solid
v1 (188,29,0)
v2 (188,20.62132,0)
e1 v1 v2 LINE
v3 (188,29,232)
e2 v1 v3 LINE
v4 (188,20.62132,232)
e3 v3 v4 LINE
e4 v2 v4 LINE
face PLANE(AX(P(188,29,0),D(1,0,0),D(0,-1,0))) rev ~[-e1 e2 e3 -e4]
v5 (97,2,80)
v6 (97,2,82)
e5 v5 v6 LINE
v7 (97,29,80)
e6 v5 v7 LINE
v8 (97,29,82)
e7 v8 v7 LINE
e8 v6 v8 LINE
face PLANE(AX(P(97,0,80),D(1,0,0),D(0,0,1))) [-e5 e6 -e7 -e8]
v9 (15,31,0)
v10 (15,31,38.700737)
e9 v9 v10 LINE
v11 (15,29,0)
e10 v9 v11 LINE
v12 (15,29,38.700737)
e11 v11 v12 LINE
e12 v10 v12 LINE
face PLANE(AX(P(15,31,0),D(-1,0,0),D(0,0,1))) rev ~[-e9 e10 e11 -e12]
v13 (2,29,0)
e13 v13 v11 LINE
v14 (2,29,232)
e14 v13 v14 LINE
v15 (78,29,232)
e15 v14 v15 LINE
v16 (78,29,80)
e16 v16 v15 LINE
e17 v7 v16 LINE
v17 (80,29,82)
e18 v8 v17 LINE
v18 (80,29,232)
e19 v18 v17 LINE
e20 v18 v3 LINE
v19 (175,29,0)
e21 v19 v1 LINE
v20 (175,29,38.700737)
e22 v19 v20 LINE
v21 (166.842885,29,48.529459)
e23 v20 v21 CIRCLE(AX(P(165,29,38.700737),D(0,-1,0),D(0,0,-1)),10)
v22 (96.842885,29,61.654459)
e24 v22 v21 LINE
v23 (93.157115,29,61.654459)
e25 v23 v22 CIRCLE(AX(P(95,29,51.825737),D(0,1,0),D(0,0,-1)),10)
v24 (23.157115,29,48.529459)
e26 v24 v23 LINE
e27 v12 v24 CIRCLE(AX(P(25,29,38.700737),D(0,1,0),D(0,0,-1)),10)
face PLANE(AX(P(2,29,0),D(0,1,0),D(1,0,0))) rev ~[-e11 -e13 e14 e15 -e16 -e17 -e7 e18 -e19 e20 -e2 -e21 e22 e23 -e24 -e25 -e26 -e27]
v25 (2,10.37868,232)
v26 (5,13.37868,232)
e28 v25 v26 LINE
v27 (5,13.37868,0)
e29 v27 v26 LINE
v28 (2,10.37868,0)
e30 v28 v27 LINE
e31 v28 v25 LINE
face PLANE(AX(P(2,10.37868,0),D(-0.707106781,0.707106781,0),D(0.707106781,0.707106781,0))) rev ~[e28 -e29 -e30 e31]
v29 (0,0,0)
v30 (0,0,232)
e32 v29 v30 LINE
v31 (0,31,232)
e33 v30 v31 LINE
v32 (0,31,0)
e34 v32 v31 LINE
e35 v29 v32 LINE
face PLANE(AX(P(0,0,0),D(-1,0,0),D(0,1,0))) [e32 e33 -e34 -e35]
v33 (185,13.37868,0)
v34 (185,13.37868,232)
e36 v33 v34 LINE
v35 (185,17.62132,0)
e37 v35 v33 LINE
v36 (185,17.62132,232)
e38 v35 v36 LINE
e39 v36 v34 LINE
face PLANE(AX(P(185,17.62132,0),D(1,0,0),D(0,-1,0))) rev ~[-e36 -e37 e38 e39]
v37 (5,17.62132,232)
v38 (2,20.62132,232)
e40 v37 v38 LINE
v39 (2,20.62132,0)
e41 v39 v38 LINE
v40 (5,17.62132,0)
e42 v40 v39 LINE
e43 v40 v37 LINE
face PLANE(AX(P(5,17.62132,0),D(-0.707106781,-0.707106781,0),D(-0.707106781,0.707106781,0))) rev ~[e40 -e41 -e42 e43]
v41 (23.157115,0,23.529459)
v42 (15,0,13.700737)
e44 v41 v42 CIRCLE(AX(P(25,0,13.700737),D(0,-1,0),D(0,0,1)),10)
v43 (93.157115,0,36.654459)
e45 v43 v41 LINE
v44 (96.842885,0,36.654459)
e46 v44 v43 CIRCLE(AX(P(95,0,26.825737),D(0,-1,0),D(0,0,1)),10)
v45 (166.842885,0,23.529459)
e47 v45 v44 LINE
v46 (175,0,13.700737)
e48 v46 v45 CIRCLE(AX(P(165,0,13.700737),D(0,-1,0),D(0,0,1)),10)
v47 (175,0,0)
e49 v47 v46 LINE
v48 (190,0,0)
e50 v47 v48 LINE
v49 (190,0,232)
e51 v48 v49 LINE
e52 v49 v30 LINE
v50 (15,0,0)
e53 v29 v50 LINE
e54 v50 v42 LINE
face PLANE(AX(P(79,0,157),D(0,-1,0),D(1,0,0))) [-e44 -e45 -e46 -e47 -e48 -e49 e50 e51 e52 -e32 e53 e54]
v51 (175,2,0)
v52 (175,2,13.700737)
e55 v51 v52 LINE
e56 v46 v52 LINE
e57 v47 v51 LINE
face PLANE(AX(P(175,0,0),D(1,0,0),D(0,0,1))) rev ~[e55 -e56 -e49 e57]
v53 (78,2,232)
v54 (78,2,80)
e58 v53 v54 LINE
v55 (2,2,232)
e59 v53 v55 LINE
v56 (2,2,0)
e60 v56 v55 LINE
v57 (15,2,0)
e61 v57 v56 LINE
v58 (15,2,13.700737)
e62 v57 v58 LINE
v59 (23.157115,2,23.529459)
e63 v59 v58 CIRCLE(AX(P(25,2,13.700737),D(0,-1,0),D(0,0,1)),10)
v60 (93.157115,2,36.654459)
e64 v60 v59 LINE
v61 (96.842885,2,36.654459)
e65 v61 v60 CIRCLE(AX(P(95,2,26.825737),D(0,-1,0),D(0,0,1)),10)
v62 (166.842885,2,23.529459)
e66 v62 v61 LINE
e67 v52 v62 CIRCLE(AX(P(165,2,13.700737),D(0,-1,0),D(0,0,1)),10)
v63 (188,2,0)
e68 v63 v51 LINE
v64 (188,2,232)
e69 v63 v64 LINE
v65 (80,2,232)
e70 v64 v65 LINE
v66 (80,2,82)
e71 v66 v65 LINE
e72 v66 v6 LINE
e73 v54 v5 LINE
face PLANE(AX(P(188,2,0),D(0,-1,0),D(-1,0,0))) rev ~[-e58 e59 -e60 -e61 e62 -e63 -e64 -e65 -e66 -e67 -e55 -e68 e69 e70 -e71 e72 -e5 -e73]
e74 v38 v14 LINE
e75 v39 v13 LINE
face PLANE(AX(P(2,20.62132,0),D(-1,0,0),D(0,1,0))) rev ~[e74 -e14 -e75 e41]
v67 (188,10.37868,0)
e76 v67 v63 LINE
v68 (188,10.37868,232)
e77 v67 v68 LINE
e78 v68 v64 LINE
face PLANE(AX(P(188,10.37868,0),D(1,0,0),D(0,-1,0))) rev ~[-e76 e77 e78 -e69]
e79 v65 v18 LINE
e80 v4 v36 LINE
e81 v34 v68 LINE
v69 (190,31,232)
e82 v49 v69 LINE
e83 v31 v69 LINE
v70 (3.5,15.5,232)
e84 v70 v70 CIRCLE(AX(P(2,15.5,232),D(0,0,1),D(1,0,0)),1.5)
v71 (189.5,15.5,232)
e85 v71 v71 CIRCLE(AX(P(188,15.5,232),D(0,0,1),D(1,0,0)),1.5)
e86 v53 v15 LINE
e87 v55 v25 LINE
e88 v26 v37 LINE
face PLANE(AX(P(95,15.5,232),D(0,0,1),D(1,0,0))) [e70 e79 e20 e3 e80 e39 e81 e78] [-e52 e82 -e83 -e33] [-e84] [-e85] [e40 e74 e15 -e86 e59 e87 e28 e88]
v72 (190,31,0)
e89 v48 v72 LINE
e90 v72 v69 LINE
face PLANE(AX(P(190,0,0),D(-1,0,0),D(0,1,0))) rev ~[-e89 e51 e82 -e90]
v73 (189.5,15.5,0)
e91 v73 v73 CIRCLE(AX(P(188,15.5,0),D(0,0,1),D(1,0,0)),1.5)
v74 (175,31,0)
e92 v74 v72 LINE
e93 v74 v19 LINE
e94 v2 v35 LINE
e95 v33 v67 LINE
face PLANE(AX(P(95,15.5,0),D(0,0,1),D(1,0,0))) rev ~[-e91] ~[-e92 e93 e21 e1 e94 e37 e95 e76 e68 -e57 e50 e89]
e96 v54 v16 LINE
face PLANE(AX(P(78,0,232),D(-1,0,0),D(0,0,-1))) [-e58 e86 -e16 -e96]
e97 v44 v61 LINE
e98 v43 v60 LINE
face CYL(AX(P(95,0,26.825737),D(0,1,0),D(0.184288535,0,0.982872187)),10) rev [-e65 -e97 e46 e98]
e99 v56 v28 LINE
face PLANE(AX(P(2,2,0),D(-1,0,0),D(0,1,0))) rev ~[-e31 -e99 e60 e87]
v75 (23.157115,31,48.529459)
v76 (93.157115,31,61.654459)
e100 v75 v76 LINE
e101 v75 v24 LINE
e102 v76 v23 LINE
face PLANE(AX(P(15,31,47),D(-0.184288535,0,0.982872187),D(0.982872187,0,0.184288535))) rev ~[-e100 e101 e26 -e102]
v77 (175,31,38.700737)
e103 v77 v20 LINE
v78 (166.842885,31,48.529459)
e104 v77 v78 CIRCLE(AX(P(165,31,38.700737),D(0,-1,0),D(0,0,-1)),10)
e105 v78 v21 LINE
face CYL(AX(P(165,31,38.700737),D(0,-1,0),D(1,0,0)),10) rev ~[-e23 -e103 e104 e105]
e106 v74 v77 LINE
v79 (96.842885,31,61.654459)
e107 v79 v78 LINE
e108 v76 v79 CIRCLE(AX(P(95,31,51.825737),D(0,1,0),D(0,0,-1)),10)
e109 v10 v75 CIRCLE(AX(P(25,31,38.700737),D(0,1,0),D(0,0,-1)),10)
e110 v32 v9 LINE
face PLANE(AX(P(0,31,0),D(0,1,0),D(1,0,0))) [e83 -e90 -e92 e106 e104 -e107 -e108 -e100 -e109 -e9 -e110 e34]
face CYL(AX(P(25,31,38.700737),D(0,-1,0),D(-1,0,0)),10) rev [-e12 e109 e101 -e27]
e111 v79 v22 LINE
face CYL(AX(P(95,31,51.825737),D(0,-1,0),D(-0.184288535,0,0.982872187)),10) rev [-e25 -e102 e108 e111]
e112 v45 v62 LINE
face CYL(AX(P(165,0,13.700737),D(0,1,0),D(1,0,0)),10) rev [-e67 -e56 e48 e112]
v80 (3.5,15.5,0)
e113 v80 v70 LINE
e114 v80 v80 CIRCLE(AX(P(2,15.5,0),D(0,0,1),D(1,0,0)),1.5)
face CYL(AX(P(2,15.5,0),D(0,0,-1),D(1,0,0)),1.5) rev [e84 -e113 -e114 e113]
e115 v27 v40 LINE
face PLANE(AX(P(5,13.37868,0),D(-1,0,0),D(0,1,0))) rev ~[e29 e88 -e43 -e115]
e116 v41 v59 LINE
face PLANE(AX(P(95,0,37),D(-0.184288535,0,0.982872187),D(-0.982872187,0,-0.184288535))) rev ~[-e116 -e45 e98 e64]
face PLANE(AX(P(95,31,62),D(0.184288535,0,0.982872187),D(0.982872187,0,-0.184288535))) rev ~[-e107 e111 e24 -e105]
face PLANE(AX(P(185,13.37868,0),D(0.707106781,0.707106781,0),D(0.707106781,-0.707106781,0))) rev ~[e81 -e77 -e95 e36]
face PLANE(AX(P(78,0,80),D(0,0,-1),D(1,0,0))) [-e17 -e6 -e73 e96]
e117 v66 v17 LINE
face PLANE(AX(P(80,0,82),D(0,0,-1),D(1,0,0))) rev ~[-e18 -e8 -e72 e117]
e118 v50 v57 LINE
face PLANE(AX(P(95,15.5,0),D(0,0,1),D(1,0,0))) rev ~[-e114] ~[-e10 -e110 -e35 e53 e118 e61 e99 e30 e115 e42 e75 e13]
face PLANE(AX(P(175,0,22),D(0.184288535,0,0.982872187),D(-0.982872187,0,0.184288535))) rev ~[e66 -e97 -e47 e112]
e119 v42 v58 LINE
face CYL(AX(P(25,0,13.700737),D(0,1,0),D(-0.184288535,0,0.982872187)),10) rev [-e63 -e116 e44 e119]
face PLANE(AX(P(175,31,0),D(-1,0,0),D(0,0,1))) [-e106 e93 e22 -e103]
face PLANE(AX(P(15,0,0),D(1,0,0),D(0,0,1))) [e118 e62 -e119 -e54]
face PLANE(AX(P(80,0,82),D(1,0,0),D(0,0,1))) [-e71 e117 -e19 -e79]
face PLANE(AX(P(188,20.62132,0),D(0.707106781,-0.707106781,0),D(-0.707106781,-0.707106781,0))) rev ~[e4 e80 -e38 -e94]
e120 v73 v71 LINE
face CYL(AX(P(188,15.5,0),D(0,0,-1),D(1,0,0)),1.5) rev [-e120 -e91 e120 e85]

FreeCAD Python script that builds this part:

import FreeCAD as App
import Part
import Sketcher


def edges_at(feature, points):
    """Names of the edges that pass closest to the given points."""
    edges = feature.Shape.Edges
    near = lambda p: min(range(len(edges)), key=lambda i: edges[i].distToShape(Part.Vertex(*p))[0])
    return sorted({f"Edge{near(p) + 1}" for p in points})

doc = App.newDocument("Part")
body = doc.addObject("PartDesign::Body", "Body")

sketch1 = doc.addObject("Sketcher::SketchObject", "Sketch")
body.addObject(sketch1)
sketch1.AttachmentSupport = (doc.XY_Plane, [""])
sketch1.MapMode = "FlatFace"
sketch1.addGeometry([
    Part.LineSegment(App.Vector(0, 31, 0), App.Vector(0, 0, 0)),
    Part.LineSegment(App.Vector(0, 0, 0), App.Vector(190, 0, 0)),
    Part.LineSegment(App.Vector(190, 0, 0), App.Vector(190, 31, 0)),
    Part.LineSegment(App.Vector(190, 31, 0), App.Vector(0, 31, 0)),
    Part.Circle(App.Vector(2, 15.5, 0), App.Vector(0, 0, 1), 1.5),
    Part.LineSegment(App.Vector(188, 10.4, 0), App.Vector(188, 2, 0)),
    Part.LineSegment(App.Vector(188, 2, 0), App.Vector(2, 2, 0)),
    Part.LineSegment(App.Vector(2, 2, 0), App.Vector(2, 10.4, 0)),
    Part.LineSegment(App.Vector(2, 10.4, 0), App.Vector(5, 13.4, 0)),
    Part.LineSegment(App.Vector(5, 13.4, 0), App.Vector(5, 17.6, 0)),
    Part.LineSegment(App.Vector(5, 17.6, 0), App.Vector(2, 20.6, 0)),
    Part.LineSegment(App.Vector(2, 20.6, 0), App.Vector(2, 29, 0)),
    Part.LineSegment(App.Vector(2, 29, 0), App.Vector(188, 29, 0)),
    Part.LineSegment(App.Vector(188, 29, 0), App.Vector(188, 20.6, 0)),
    Part.LineSegment(App.Vector(188, 20.6, 0), App.Vector(185, 17.6, 0)),
    Part.LineSegment(App.Vector(185, 17.6, 0), App.Vector(185, 13.4, 0)),
    Part.LineSegment(App.Vector(185, 13.4, 0), App.Vector(188, 10.4, 0)),
    Part.Circle(App.Vector(188, 15.5, 0), App.Vector(0, 0, 1), 1.5),
], False)
sketch1.addConstraint([
    Sketcher.Constraint("Coincident", 0, 2, 1, 1),
    Sketcher.Constraint("Coincident", 1, 2, 2, 1),
    Sketcher.Constraint("Coincident", 2, 2, 3, 1),
    Sketcher.Constraint("Coincident", 3, 2, 0, 1),
    Sketcher.Constraint("Coincident", 5, 2, 6, 1),
    Sketcher.Constraint("Coincident", 6, 2, 7, 1),
    Sketcher.Constraint("Coincident", 7, 2, 8, 1),
    Sketcher.Constraint("Coincident", 8, 2, 9, 1),
    Sketcher.Constraint("Coincident", 9, 2, 10, 1),
    Sketcher.Constraint("Coincident", 10, 2, 11, 1),
    Sketcher.Constraint("Coincident", 11, 2, 12, 1),
    Sketcher.Constraint("Coincident", 12, 2, 13, 1),
    Sketcher.Constraint("Coincident", 13, 2, 14, 1),
    Sketcher.Constraint("Coincident", 14, 2, 15, 1),
    Sketcher.Constraint("Coincident", 15, 2, 16, 1),
    Sketcher.Constraint("Coincident", 16, 2, 5, 1),
    Sketcher.Constraint("Vertical", 0),
    Sketcher.Constraint("Horizontal", 1),
    Sketcher.Constraint("Vertical", 2),
    Sketcher.Constraint("Horizontal", 3),
    Sketcher.Constraint("Vertical", 5),
    Sketcher.Constraint("Horizontal", 6),
    Sketcher.Constraint("Vertical", 7),
    Sketcher.Constraint("Vertical", 9),
    Sketcher.Constraint("Vertical", 11),
    Sketcher.Constraint("Horizontal", 12),
    Sketcher.Constraint("Vertical", 13),
    Sketcher.Constraint("Vertical", 15),
    Sketcher.Constraint("Coincident", 0, 2, -1, 1),
    Sketcher.Constraint("Equal", 4, 17),
    Sketcher.Constraint("Perpendicular", 8, 10),
    Sketcher.Constraint("Perpendicular", 10, 14),
    Sketcher.Constraint("Perpendicular", 14, 16),
    Sketcher.Constraint("Horizontal", 4, 3, 17, 3),
    Sketcher.Constraint("Horizontal", 10, 2, 13, 2),
    Sketcher.Constraint("Horizontal", 9, 2, 14, 2),
    Sketcher.Constraint("Horizontal", 8, 2, 15, 2),
    Sketcher.Constraint("Horizontal", 7, 2, 16, 2),
    Sketcher.Constraint("Vertical", 17, 3, 5, 2),
    Sketcher.Constraint("Vertical", 4, 3, 6, 2),
    Sketcher.Constraint("Vertical", 7, 2, 10, 2),
    Sketcher.Constraint("Vertical", 5, 2, 12, 2),
    Sketcher.Constraint("Equal", 7, 11),
    Sketcher.Constraint("Diameter", 4, 3.0),
    Sketcher.Constraint("DistanceX", 1, 1, 1, 2, 190.0),
    Sketcher.Constraint("DistanceX", 6, 2, 6, 1, 186.0),
    Sketcher.Constraint("DistanceY", 0, 2, 0, 1, 31.0),
    Sketcher.Constraint("DistanceX", -1, 1, 4, 3, 2.0),
    Sketcher.Constraint("DistanceY", -1, 1, 5, 2, 2.0),
    Sketcher.Constraint("DistanceX", -1, 1, 8, 2, 5.0),
    Sketcher.Constraint("DistanceY", -1, 1, 11, 2, 29.0),
    Sketcher.Constraint("DistanceY", -1, 1, 4, 3, 15.5),
    Sketcher.Constraint("DistanceY", 5, 2, 5, 1, 8.37868),
])
pad1 = doc.addObject("PartDesign::Pad", "Pad")
body.addObject(pad1)
pad1.Profile = sketch1
pad1.Length = 232

sketch2 = doc.addObject("Sketcher::SketchObject", "Sketch001")
body.addObject(sketch2)
sketch2.AttachmentSupport = (doc.XZ_Plane, [""])
sketch2.MapMode = "FlatFace"
sketch2.addGeometry([
    Part.LineSegment(App.Vector(78, 232, 0), App.Vector(78, 80, 0)),
    Part.LineSegment(App.Vector(78, 80, 0), App.Vector(97, 80, 0)),
    Part.LineSegment(App.Vector(97, 80, 0), App.Vector(97, 82, 0)),
    Part.LineSegment(App.Vector(97, 82, 0), App.Vector(80, 82, 0)),
    Part.LineSegment(App.Vector(80, 82, 0), App.Vector(80, 232, 0)),
    Part.LineSegment(App.Vector(80, 232, 0), App.Vector(78, 232, 0)),
], False)
sketch2.addConstraint([
    Sketcher.Constraint("Coincident", 0, 2, 1, 1),
    Sketcher.Constraint("Coincident", 1, 2, 2, 1),
    Sketcher.Constraint("Coincident", 2, 2, 3, 1),
    Sketcher.Constraint("Coincident", 3, 2, 4, 1),
    Sketcher.Constraint("Coincident", 4, 2, 5, 1),
    Sketcher.Constraint("Coincident", 5, 2, 0, 1),
    Sketcher.Constraint("Vertical", 0),
    Sketcher.Constraint("Horizontal", 1),
    Sketcher.Constraint("Vertical", 2),
    Sketcher.Constraint("Horizontal", 3),
    Sketcher.Constraint("Vertical", 4),
    Sketcher.Constraint("Horizontal", 5),
    Sketcher.Constraint("Equal", 5, 2),
    Sketcher.Constraint("DistanceX", 1, 1, 1, 2, 19.0),
    Sketcher.Constraint("DistanceX", 3, 2, 3, 1, 17.0),
    Sketcher.Constraint("DistanceY", 0, 2, 0, 1, 152.0),
    Sketcher.Constraint("DistanceX", -1, 1, 0, 2, 78.0),
    Sketcher.Constraint("DistanceY", -1, 1, 0, 2, 80.0),
])
pad2 = doc.addObject("PartDesign::Pad", "Pad001")
body.addObject(pad2)
pad2.Profile = sketch2
pad2.Length = 29.5
pad2.Reversed = True

sketch3 = doc.addObject("Sketcher::SketchObject", "Sketch002")
body.addObject(sketch3)
sketch3.AttachmentSupport = (doc.XZ_Plane, [""])
sketch3.MapMode = "FlatFace"
sketch3.AttachmentOffset = App.Placement(App.Vector(0, 0, -31), App.Rotation())
sketch3.addGeometry([
    Part.LineSegment(App.Vector(95, 62, 0), App.Vector(175, 47, 0)),
    Part.LineSegment(App.Vector(175, 47, 0), App.Vector(175, 0, 0)),
    Part.LineSegment(App.Vector(175, 0, 0), App.Vector(15, 0, 0)),
    Part.LineSegment(App.Vector(15, 0, 0), App.Vector(15, 47, 0)),
    Part.LineSegment(App.Vector(15, 47, 0), App.Vector(95, 62, 0)),
], False)
sketch3.addConstraint([
    Sketcher.Constraint("Coincident", 0, 2, 1, 1),
    Sketcher.Constraint("Coincident", 1, 2, 2, 1),
    Sketcher.Constraint("Coincident", 2, 2, 3, 1),
    Sketcher.Constraint("Coincident", 3, 2, 4, 1),
    Sketcher.Constraint("Coincident", 4, 2, 0, 1),
    Sketcher.Constraint("Vertical", 1),
    Sketcher.Constraint("Horizontal", 2),
    Sketcher.Constraint("Vertical", 3),
    Sketcher.Constraint("PointOnObject", 1, 2, -1),
    Sketcher.Constraint("Horizontal", 0, 2, 3, 2),
    Sketcher.Constraint("Equal", 0, 4),
    Sketcher.Constraint("DistanceX", 2, 2, 2, 1, 160.0),
    Sketcher.Constraint("DistanceY", 1, 2, 1, 1, 47.0),
    Sketcher.Constraint("DistanceX", -1, 1, 0, 2, 175.0),
    Sketcher.Constraint("DistanceY", -1, 1, 4, 2, 62.0),
])
pocket1 = doc.addObject("PartDesign::Pocket", "Pocket")
body.addObject(pocket1)
pocket1.Profile = sketch3
pocket1.Length = 5
pocket1.Reversed = True

sketch4 = doc.addObject("Sketcher::SketchObject", "Sketch003")
body.addObject(sketch4)
sketch4.AttachmentSupport = (doc.XZ_Plane, [""])
sketch4.MapMode = "FlatFace"
sketch4.addGeometry([
    Part.LineSegment(App.Vector(95, 37, 0), App.Vector(15, 22, 0)),
    Part.LineSegment(App.Vector(15, 22, 0), App.Vector(15, 0, 0)),
    Part.LineSegment(App.Vector(15, 0, 0), App.Vector(175, 0, 0)),
    Part.LineSegment(App.Vector(175, 0, 0), App.Vector(175, 22, 0)),
    Part.LineSegment(App.Vector(175, 22, 0), App.Vector(95, 37, 0)),
], False)
sketch4.addConstraint([
    Sketcher.Constraint("Coincident", 0, 2, 1, 1),
    Sketcher.Constraint("Coincident", 1, 2, 2, 1),
    Sketcher.Constraint("Coincident", 2, 2, 3, 1),
    Sketcher.Constraint("Coincident", 3, 2, 4, 1),
    Sketcher.Constraint("Coincident", 4, 2, 0, 1),
    Sketcher.Constraint("Vertical", 1),
    Sketcher.Constraint("Horizontal", 2),
    Sketcher.Constraint("Vertical", 3),
    Sketcher.Constraint("PointOnObject", 1, 2, -1),
    Sketcher.Constraint("Horizontal", 0, 2, 3, 2),
    Sketcher.Constraint("Equal", 0, 4),
    Sketcher.Constraint("DistanceX", 2, 1, 2, 2, 160.0),
    Sketcher.Constraint("DistanceY", 1, 2, 1, 1, 22.0),
    Sketcher.Constraint("DistanceX", -1, 1, 0, 2, 15.0),
    Sketcher.Constraint("DistanceY", -1, 1, 4, 2, 37.0),
])
pocket2 = doc.addObject("PartDesign::Pocket", "Pocket001")
body.addObject(pocket2)
pocket2.Profile = sketch4
pocket2.Length = 5
doc.recompute()

fillet = doc.addObject("PartDesign::Fillet", "Fillet")
body.addObject(fillet)
fillet.Base = (pocket2, edges_at(pocket2, [
    (15, 30, 47),
    (15, 1, 22),
    (175, 30, 47),
    (175, 1, 22),
    (95, 30, 62),
    (95, 1, 37),
]))
fillet.Radius = 10

doc.recompute()
